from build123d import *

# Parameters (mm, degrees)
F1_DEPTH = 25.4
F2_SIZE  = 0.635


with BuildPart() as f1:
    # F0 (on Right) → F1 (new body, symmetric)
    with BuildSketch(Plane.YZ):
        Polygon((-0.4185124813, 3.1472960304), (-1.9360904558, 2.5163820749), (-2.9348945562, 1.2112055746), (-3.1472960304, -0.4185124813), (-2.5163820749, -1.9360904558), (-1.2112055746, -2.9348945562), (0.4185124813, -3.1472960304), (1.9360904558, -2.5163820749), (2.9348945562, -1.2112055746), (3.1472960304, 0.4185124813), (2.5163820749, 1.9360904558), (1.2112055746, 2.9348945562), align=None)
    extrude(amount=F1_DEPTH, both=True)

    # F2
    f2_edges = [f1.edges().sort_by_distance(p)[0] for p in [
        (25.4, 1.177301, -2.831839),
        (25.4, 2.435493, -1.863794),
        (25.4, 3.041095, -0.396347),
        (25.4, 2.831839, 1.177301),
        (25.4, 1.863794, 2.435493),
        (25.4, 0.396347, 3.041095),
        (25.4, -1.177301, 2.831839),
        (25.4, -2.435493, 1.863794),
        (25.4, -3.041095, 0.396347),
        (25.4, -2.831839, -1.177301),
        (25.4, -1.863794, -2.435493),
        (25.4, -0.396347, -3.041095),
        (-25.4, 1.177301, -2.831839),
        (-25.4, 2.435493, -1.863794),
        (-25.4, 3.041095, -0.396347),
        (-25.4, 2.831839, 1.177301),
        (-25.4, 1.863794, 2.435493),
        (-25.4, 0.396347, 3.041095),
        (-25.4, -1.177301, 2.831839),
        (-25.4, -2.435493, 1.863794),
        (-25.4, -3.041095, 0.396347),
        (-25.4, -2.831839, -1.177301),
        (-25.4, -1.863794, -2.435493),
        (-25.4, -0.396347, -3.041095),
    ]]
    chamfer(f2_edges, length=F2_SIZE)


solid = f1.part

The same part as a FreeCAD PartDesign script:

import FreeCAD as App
import Part
import Sketcher

V = App.Vector
Q = App.Units.Quantity


def edges_at(feature, points):
    """Names of the edges that pass closest to the given points."""
    edges = feature.Shape.Edges
    near = lambda p: min(range(len(edges)), key=lambda i: edges[i].distToShape(Part.Vertex(*p))[0])
    return sorted({f"Edge{near(p) + 1}" for p in points})

doc = App.newDocument("Part")
body = doc.addObject("PartDesign::Body", "Body")

# Sketch on YZ plane
sketch1 = body.newObject("Sketcher::SketchObject", "Sketch")
sketch1.AttachmentSupport = (doc.getObject("YZ_Plane"), [""])
sketch1.MapMode = "FlatFace"
sketch1.addGeometry([
    Part.LineSegment(V(-0.418512, 3.147296, 0), V(-1.93609, 2.516382, 0)),  # 0
    Part.LineSegment(V(-1.93609, 2.516382, 0), V(-2.934895, 1.211206, 0)),  # 1
    Part.LineSegment(V(-2.934895, 1.211206, 0), V(-3.147296, -0.418512, 0)),  # 2
    Part.LineSegment(V(-3.147296, -0.418512, 0), V(-2.516382, -1.93609, 0)),  # 3
    Part.LineSegment(V(-2.516382, -1.93609, 0), V(-1.211206, -2.934895, 0)),  # 4
    Part.LineSegment(V(-1.211206, -2.934895, 0), V(0.418512, -3.147296, 0)),  # 5
    Part.LineSegment(V(0.418512, -3.147296, 0), V(1.93609, -2.516382, 0)),  # 6
    Part.LineSegment(V(1.93609, -2.516382, 0), V(2.934895, -1.211206, 0)),  # 7
    Part.LineSegment(V(2.934895, -1.211206, 0), V(3.147296, 0.418512, 0)),  # 8
    Part.LineSegment(V(3.147296, 0.418512, 0), V(2.516382, 1.93609, 0)),  # 9
    Part.LineSegment(V(2.516382, 1.93609, 0), V(1.211206, 2.934895, 0)),  # 10
    Part.LineSegment(V(1.211206, 2.934895, 0), V(-0.418512, 3.147296, 0)),  # 11
], False)
sketch1.addConstraint([
    Sketcher.Constraint("Coincident", 0, 2, 1, 1),
    Sketcher.Constraint("Coincident", 1, 2, 2, 1),
    Sketcher.Constraint("Coincident", 2, 2, 3, 1),
    Sketcher.Constraint("Coincident", 3, 2, 4, 1),
    Sketcher.Constraint("Coincident", 4, 2, 5, 1),
    Sketcher.Constraint("Coincident", 5, 2, 6, 1),
    Sketcher.Constraint("Coincident", 6, 2, 7, 1),
    Sketcher.Constraint("Coincident", 7, 2, 8, 1),
    Sketcher.Constraint("Coincident", 8, 2, 9, 1),
    Sketcher.Constraint("Coincident", 9, 2, 10, 1),
    Sketcher.Constraint("Coincident", 10, 2, 11, 1),
    Sketcher.Constraint("Coincident", 11, 2, 0, 1),
    Sketcher.Constraint("Symmetric", 0, 2, 6, 2, -1, 1),
    Sketcher.Constraint("Symmetric", 1, 2, 7, 2, -1, 1),
    Sketcher.Constraint("Symmetric", 2, 2, 8, 2, -1, 1),
    Sketcher.Constraint("Symmetric", 3, 2, 9, 2, -1, 1),
    Sketcher.Constraint("Symmetric", 4, 2, 10, 2, -1, 1),
    Sketcher.Constraint("Symmetric", 5, 2, 11, 2, -1, 1),
    Sketcher.Constraint("Perpendicular", 0, 3),
    Sketcher.Constraint("Perpendicular", 1, 4),
    Sketcher.Constraint("Perpendicular", 2, 5),
    Sketcher.Constraint("Equal", 0, 1),
    Sketcher.Constraint("Equal", 1, 2),
    Sketcher.Constraint("Equal", 2, 3),
    Sketcher.Constraint("Equal", 3, 4),
    Sketcher.Constraint("Equal", 4, 5),
    Sketcher.Constraint("Distance", 0, Q("1.643501 mm")),
    Sketcher.Constraint("DistanceX", 2, 2, 1, 2, Q("0.212401 mm")),
    Sketcher.Constraint("DistanceY", 4, 2, 1, 2, Q("4.1461 mm")),
    Sketcher.Constraint("DistanceX", 0, 2, -1, 1, Q("1.93609 mm")),
])
pad1 = body.newObject("PartDesign::Pad", "Pad")
pad1.Profile = sketch1
pad1.Length = Q("2 in")
pad1.Midplane = True
doc.recompute()

chamfer = body.newObject("PartDesign::Chamfer", "Chamfer")
chamfer.Base = (pad1, edges_at(pad1, [
    (25.4, 1.177, -2.832),
    (25.4, 2.435, -1.864),
    (25.4, 3.041, -0.396),
    (25.4, 2.832, 1.177),
    (25.4, 1.864, 2.435),
    (25.4, 0.396, 3.041),
    (25.4, -1.177, 2.832),
    (25.4, -2.435, 1.864),
    (25.4, -3.041, 0.396),
    (25.4, -2.832, -1.177),
    (25.4, -1.864, -2.435),
    (25.4, -0.396, -3.041),
    (-25.4, 1.177, -2.832),
    (-25.4, 2.435, -1.864),
    (-25.4, 3.041, -0.396),
    (-25.4, 2.832, 1.177),
    (-25.4, 1.864, 2.435),
    (-25.4, 0.396, 3.041),
    (-25.4, -1.177, 2.832),
    (-25.4, -2.435, 1.864),
    (-25.4, -3.041, 0.396),
    (-25.4, -2.832, -1.177),
    (-25.4, -1.864, -2.435),
    (-25.4, -0.396, -3.041),
]))
chamfer.Size = Q("0.025 in")

doc.recompute()
